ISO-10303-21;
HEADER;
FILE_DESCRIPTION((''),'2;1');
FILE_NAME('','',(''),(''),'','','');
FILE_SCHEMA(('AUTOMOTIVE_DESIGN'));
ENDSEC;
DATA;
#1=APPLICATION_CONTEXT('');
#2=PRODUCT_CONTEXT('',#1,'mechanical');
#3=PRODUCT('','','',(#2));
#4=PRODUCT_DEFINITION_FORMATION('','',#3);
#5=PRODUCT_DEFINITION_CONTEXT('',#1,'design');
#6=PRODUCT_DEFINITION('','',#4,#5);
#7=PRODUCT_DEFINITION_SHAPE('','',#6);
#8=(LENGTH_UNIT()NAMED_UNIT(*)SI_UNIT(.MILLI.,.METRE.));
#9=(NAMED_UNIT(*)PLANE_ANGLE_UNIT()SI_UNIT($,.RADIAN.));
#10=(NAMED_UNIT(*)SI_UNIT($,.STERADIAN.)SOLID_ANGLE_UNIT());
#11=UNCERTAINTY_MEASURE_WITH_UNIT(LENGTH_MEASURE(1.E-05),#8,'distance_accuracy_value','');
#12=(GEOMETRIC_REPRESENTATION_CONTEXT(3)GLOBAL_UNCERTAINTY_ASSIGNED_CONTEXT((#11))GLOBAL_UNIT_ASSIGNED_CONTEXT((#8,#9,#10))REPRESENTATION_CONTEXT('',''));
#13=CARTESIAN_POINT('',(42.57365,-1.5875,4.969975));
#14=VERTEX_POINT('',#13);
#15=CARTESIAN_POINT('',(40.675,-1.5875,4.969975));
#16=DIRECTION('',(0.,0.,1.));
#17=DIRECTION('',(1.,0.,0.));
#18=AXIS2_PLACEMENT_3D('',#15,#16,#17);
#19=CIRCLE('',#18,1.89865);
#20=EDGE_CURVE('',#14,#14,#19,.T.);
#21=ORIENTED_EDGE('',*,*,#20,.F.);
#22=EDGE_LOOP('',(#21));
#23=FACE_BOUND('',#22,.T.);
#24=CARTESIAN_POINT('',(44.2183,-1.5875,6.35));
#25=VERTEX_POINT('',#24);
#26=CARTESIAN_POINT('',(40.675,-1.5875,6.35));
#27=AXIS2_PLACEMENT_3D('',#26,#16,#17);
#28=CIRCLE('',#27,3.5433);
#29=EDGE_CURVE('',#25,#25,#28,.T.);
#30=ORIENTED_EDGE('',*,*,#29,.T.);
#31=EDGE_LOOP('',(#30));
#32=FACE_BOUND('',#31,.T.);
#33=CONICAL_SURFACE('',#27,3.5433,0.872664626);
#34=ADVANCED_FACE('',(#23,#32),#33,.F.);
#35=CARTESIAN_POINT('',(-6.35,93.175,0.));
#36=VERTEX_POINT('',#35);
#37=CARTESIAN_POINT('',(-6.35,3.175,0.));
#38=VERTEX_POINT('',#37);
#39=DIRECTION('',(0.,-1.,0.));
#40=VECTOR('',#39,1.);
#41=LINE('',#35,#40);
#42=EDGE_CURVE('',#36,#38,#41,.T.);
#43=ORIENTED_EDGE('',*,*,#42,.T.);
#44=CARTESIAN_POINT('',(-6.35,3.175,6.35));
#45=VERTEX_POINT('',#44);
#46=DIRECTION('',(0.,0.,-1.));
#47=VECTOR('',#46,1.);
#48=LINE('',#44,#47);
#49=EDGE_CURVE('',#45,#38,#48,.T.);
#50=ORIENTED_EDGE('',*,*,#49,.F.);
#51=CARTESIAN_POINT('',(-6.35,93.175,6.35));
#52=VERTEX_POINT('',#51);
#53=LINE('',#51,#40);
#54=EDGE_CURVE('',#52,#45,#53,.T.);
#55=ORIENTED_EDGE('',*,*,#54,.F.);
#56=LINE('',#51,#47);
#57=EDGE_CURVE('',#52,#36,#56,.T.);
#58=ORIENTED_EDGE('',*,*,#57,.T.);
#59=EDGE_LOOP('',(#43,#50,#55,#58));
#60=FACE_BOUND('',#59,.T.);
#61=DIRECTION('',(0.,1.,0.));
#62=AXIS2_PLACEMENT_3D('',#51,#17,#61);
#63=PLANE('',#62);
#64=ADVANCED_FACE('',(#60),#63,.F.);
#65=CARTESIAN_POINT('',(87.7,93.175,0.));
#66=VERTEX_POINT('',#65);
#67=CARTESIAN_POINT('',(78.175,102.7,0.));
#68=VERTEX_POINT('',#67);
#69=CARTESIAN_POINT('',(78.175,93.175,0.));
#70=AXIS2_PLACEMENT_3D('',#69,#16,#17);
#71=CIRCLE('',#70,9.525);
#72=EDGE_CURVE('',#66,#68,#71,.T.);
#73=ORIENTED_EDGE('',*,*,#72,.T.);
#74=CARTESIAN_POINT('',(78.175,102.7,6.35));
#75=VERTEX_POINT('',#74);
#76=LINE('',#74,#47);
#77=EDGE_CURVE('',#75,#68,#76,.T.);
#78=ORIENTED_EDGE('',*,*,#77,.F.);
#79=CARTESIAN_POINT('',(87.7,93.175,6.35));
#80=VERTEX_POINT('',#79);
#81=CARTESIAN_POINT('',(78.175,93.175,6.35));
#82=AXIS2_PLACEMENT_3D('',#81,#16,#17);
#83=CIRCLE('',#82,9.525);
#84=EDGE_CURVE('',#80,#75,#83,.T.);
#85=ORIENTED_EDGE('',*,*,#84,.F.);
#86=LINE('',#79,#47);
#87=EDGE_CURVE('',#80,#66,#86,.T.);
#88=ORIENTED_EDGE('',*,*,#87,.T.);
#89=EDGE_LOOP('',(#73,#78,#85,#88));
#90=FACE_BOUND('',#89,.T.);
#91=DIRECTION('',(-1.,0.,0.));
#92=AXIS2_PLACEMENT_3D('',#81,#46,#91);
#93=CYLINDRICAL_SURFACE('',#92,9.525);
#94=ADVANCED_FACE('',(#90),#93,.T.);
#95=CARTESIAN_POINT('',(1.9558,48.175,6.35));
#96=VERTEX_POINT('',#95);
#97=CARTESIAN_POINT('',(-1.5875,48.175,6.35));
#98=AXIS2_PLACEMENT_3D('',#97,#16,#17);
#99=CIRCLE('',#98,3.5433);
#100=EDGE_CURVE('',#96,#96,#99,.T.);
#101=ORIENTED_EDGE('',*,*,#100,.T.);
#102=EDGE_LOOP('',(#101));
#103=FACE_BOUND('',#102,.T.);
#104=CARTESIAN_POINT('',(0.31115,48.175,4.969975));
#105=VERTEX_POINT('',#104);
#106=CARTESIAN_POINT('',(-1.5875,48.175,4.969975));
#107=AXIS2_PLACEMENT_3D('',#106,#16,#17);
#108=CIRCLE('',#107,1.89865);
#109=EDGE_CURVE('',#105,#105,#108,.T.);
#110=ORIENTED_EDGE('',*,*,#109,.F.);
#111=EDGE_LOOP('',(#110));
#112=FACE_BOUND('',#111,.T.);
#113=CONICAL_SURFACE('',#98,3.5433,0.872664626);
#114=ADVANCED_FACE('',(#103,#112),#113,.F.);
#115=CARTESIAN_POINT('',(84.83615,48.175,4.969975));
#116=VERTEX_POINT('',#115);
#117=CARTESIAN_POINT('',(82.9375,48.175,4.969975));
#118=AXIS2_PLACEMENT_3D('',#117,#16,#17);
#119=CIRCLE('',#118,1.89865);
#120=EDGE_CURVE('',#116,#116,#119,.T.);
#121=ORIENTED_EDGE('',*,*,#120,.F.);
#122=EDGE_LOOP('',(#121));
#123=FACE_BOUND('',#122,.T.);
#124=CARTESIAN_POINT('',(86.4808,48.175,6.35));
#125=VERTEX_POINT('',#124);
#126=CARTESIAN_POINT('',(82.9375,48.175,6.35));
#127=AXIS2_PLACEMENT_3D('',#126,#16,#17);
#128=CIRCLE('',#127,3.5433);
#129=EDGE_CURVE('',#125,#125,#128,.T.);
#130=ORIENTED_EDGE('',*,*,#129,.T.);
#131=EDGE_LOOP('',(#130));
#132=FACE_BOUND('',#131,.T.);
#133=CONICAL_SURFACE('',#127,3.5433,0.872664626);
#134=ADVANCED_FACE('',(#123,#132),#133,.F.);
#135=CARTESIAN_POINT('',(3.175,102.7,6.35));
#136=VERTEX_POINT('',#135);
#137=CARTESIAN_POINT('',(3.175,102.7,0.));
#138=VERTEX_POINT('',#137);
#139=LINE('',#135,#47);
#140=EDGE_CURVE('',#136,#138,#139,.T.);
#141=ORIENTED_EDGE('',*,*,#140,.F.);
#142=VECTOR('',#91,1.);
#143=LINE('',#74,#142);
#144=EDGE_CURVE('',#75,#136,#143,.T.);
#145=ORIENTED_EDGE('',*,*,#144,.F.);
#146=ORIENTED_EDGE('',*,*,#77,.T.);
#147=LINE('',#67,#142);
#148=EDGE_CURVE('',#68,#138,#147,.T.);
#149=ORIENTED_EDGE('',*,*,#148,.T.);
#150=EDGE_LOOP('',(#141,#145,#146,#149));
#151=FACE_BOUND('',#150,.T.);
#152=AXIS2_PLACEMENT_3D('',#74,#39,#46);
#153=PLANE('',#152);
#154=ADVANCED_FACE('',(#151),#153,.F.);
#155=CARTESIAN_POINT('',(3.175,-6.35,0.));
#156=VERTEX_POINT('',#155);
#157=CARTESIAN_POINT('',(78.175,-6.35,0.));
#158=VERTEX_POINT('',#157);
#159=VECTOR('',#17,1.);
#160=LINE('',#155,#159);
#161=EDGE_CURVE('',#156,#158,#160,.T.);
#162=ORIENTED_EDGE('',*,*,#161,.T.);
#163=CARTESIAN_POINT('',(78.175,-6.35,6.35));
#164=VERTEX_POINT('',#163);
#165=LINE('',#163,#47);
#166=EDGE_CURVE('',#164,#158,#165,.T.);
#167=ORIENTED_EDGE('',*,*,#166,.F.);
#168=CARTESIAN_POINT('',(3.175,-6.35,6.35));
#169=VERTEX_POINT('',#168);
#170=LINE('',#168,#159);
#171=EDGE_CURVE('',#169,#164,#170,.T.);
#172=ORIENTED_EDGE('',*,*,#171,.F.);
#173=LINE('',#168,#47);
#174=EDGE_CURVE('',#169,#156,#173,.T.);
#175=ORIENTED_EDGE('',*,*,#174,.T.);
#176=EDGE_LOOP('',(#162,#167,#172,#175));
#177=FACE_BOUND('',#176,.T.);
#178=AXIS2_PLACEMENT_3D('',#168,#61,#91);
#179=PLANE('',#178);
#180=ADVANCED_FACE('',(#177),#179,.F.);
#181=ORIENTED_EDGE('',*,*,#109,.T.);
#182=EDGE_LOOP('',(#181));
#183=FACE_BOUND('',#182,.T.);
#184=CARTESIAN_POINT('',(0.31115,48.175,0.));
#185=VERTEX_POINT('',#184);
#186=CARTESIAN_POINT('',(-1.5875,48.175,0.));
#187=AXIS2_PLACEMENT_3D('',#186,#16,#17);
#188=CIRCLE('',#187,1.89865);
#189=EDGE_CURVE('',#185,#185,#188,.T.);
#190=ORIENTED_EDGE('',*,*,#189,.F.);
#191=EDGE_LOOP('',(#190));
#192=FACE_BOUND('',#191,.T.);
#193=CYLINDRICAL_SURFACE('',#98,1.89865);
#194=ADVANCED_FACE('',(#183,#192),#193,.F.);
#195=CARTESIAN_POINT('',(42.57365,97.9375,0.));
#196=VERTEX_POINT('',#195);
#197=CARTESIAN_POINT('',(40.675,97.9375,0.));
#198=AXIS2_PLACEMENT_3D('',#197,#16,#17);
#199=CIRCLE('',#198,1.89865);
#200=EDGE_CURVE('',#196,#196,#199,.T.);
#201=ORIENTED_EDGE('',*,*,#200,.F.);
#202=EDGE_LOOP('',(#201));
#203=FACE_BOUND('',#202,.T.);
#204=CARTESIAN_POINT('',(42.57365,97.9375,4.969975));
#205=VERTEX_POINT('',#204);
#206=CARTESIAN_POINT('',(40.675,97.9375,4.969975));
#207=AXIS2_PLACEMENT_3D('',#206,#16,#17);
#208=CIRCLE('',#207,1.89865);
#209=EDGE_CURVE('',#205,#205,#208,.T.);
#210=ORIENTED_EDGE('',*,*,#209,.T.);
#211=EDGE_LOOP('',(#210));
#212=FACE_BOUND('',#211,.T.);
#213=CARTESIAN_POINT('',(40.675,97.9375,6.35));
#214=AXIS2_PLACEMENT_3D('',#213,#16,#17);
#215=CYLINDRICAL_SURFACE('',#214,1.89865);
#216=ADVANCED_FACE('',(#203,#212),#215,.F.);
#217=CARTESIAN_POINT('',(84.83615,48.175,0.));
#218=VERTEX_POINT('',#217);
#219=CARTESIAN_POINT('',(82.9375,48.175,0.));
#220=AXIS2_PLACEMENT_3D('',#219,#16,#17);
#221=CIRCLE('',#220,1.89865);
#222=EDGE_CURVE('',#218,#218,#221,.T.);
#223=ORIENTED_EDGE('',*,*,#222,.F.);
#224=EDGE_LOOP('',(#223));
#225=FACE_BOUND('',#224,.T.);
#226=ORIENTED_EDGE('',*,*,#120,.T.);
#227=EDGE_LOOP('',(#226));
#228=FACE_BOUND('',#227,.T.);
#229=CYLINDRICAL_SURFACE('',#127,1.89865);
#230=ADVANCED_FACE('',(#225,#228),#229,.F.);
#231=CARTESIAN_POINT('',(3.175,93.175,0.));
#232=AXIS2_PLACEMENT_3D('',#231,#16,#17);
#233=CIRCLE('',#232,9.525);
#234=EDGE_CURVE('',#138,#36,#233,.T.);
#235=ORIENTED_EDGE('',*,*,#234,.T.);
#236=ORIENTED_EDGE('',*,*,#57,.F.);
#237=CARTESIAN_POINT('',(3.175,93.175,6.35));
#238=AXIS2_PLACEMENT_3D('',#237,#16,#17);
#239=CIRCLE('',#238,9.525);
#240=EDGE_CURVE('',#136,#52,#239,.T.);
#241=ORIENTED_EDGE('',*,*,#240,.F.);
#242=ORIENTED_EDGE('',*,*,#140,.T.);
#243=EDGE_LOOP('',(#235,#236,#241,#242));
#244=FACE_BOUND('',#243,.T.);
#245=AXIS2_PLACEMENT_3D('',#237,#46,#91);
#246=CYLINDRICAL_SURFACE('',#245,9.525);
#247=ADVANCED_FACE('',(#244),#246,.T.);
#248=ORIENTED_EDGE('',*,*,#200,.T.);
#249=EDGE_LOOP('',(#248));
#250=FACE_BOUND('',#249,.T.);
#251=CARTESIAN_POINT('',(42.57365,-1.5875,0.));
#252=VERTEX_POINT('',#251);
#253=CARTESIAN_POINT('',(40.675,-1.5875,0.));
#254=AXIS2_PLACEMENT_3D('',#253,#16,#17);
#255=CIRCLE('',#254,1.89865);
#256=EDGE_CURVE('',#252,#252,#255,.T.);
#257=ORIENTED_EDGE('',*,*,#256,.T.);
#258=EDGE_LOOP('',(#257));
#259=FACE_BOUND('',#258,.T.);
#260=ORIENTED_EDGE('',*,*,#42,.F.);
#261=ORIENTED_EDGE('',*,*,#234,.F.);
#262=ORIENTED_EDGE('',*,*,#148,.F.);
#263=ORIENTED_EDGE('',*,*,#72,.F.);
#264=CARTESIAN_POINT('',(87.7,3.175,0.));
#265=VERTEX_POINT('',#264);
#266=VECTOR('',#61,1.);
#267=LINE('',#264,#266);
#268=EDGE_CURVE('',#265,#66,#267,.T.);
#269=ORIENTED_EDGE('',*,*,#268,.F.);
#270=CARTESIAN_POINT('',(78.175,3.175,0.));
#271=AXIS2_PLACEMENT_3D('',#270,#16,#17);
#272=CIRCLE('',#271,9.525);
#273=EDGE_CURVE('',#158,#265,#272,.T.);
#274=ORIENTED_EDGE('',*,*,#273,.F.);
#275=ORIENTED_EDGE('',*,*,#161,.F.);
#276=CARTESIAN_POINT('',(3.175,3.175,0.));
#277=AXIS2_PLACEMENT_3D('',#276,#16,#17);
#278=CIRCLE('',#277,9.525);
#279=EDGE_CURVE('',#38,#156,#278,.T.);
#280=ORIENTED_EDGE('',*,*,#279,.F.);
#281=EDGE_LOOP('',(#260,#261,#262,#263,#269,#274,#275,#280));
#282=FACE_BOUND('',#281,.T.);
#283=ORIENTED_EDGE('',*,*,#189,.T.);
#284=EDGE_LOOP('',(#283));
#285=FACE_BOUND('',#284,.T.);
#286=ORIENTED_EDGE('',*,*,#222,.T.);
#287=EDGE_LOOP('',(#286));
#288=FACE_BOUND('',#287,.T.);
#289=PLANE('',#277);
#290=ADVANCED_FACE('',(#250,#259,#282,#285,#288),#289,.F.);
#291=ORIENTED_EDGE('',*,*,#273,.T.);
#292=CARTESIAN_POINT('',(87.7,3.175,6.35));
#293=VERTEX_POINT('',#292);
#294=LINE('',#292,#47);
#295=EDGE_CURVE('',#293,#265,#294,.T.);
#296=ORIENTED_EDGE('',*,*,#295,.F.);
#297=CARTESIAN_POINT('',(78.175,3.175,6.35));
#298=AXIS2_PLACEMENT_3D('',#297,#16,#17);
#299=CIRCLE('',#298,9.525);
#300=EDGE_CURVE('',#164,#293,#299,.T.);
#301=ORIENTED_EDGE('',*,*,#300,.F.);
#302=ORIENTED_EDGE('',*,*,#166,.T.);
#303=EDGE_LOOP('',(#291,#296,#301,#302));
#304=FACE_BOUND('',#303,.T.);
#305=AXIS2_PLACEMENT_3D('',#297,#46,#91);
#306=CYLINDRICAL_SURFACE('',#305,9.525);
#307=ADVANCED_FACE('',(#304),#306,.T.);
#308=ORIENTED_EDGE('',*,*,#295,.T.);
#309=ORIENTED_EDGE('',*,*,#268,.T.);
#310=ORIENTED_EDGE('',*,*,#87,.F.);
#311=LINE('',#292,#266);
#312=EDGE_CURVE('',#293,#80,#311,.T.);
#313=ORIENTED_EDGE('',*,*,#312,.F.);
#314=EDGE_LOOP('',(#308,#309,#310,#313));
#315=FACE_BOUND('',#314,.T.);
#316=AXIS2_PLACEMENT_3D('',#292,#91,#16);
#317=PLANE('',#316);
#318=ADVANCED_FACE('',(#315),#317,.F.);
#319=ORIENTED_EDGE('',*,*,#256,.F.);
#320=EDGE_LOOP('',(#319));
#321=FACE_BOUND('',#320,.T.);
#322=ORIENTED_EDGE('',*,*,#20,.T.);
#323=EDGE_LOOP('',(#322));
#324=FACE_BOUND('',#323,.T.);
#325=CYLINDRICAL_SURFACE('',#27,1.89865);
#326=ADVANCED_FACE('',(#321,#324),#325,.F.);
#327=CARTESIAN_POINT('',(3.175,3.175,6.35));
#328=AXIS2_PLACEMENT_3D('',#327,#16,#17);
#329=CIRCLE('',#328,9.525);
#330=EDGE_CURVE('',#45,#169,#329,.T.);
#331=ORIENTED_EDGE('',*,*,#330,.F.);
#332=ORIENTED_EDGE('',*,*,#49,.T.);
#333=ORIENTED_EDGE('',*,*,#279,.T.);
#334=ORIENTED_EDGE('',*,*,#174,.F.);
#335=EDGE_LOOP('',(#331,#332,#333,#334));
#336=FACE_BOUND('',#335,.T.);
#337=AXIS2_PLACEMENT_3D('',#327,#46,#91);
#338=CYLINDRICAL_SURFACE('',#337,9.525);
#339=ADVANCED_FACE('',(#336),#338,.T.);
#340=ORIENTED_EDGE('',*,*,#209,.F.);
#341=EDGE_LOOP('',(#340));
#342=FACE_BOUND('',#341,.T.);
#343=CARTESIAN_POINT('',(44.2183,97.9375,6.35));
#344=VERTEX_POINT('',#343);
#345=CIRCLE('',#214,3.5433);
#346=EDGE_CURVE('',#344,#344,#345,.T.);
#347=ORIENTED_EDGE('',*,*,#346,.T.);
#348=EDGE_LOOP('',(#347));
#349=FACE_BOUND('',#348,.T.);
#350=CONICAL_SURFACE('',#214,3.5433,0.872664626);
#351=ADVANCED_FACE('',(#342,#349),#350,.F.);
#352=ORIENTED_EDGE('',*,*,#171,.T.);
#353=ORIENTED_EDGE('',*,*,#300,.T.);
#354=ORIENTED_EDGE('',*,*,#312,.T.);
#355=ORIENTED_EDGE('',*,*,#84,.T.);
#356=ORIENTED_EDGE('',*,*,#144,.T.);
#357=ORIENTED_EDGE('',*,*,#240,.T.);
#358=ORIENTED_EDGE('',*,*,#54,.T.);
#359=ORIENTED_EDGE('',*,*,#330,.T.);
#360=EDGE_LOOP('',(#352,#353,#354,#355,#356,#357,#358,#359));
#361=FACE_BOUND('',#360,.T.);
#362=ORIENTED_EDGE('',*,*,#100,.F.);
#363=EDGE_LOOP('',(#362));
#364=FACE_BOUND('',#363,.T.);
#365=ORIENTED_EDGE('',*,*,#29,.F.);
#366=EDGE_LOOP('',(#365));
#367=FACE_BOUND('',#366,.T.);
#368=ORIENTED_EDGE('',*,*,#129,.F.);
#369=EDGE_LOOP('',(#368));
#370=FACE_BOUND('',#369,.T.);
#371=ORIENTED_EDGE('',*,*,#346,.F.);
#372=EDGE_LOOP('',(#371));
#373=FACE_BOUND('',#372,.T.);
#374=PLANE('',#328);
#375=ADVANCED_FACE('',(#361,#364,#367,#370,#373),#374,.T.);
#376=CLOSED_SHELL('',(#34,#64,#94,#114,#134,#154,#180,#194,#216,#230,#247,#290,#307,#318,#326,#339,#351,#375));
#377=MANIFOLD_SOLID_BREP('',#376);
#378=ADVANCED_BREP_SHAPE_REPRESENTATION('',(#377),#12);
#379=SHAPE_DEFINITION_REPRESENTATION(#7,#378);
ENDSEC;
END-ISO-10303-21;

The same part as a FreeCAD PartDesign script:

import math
import FreeCAD as App
import Part
import Sketcher
Q = App.Units.Quantity

doc = App.newDocument("Part")
body = doc.addObject("PartDesign::Body", "Body")

sketch1 = body.newObject("Sketcher::SketchObject", "Sketch")
sketch1.AttachmentSupport = (doc.getObject("XY_Plane"), [""])
sketch1.MapMode = "FlatFace"
sketch1.addGeometry([
    Part.LineSegment(App.Vector(3.175, -6.35, 0), App.Vector(78.175, -6.35, 0)),
    Part.ArcOfCircle(Part.Circle(App.Vector(78.175, 3.175, 0), App.Vector(0, 0, 1), 9.525), math.radians(-90), math.radians(0)),
    Part.LineSegment(App.Vector(87.7, 3.175, 0), App.Vector(87.7, 93.175, 0)),
    Part.ArcOfCircle(Part.Circle(App.Vector(78.175, 93.175, 0), App.Vector(0, 0, 1), 9.525), math.radians(0), math.radians(90)),
    Part.LineSegment(App.Vector(78.175, 102.7, 0), App.Vector(3.175, 102.7, 0)),
    Part.ArcOfCircle(Part.Circle(App.Vector(3.175, 93.175, 0), App.Vector(0, 0, 1), 9.525), math.radians(90), math.radians(180)),
    Part.LineSegment(App.Vector(-6.35, 93.175, 0), App.Vector(-6.35, 3.175, 0)),
    Part.ArcOfCircle(Part.Circle(App.Vector(3.175, 3.175, 0), App.Vector(0, 0, 1), 9.525), math.radians(180), math.radians(270)),
    Part.Circle(App.Vector(40.675, -1.5875, 0), App.Vector(0, 0, 1), 1.5875),
    Part.Circle(App.Vector(-1.5875, 48.175, 0), App.Vector(0, 0, 1), 1.5875),
    Part.Circle(App.Vector(82.9375, 48.175, 0), App.Vector(0, 0, 1), 1.5875),
    Part.Circle(App.Vector(40.675, 97.9375, 0), App.Vector(0, 0, 1), 1.5875),
], False)
sketch1.addConstraint([
    Sketcher.Constraint("Tangent", 0, 2, 1, 1),
    Sketcher.Constraint("Tangent", 1, 2, 2, 1),
    Sketcher.Constraint("Tangent", 2, 2, 3, 1),
    Sketcher.Constraint("Tangent", 3, 2, 4, 1),
    Sketcher.Constraint("Tangent", 4, 2, 5, 1),
    Sketcher.Constraint("Tangent", 5, 2, 6, 1),
    Sketcher.Constraint("Tangent", 6, 2, 7, 1),
    Sketcher.Constraint("Tangent", 7, 2, 0, 1),
    Sketcher.Constraint("Horizontal", 0),
    Sketcher.Constraint("Vertical", 2),
    Sketcher.Constraint("Horizontal", 4),
    Sketcher.Constraint("Vertical", 6),
    Sketcher.Constraint("Equal", 1, 3),
    Sketcher.Constraint("Equal", 3, 5),
    Sketcher.Constraint("Equal", 5, 7),
    Sketcher.Constraint("Equal", 8, 9),
    Sketcher.Constraint("Equal", 9, 10),
    Sketcher.Constraint("Equal", 10, 11),
    Sketcher.Constraint("Horizontal", 9, 3, 10, 3),
    Sketcher.Constraint("Vertical", 8, 3, 11, 3),
    Sketcher.Constraint("Diameter", 8, Q("0.125 in")),
    Sketcher.Constraint("Radius", 1, Q("0.375 in")),
    Sketcher.Constraint("DistanceY", 0, 2, -1, 1, Q("0.25 in")),
    Sketcher.Constraint("DistanceX", 5, 2, -1, 1, Q("0.25 in")),
    Sketcher.Constraint("DistanceY", 8, 3, -1, 1, Q("0.0625 in")),
    Sketcher.Constraint("DistanceX", 9, 3, -1, 1, Q("0.0625 in")),
    Sketcher.Constraint("DistanceX", 1, 3, 10, 3, Q("0.1875 in")),
    Sketcher.Constraint("DistanceY", 5, 3, 11, 3, Q("0.1875 in")),
    Sketcher.Constraint("DistanceX", 0, 1, 0, 2, Q("75 mm")),
    Sketcher.Constraint("DistanceY", 2, 1, 2, 2, Q("90 mm")),
    Sketcher.Constraint("DistanceX", -1, 1, 8, 3, Q("40.675 mm")),
    Sketcher.Constraint("DistanceY", -1, 1, 9, 3, Q("48.175 mm")),
])
pad1 = body.newObject("PartDesign::Pad", "Pad")
pad1.Profile = sketch1
pad1.Length = Q("0.25 in")

sketch2 = body.newObject("Sketcher::SketchObject", "Sketch001")
sketch2.AttachmentSupport = (doc.getObject("XY_Plane"), [""])
sketch2.MapMode = "FlatFace"
sketch2.AttachmentOffset = App.Placement(App.Vector(0, 0, 0.25 * 25.4), App.Rotation())
sketch2.addGeometry([
    Part.Circle(App.Vector(82.9375, 48.175, 0), App.Vector(0, 0, 1), 1.89865),
    Part.Circle(App.Vector(-1.5875, 48.175, 0), App.Vector(0, 0, 1), 1.89865),
    Part.Circle(App.Vector(40.675, -1.5875, 0), App.Vector(0, 0, 1), 1.89865),
    Part.Circle(App.Vector(40.675, 97.9375, 0), App.Vector(0, 0, 1), 1.89865),
], False)
sketch2.addConstraint([
    Sketcher.Constraint("Equal", 0, 1),
    Sketcher.Constraint("Equal", 1, 2),
    Sketcher.Constraint("Equal", 2, 3),
    Sketcher.Constraint("Horizontal", 0, 3, 1, 3),
    Sketcher.Constraint("Vertical", 2, 3, 3, 3),
    Sketcher.Constraint("Diameter", 0, Q("0.1495 in")),
    Sketcher.Constraint("DistanceX", 1, 3, -1, 1, Q("0.0625 in")),
    Sketcher.Constraint("DistanceY", 2, 3, -1, 1, Q("0.0625 in")),
    Sketcher.Constraint("DistanceX", -1, 1, 0, 3, Q("82.9375 mm")),
    Sketcher.Constraint("DistanceY", -1, 1, 0, 3, Q("48.175 mm")),
    Sketcher.Constraint("DistanceX", -1, 1, 2, 3, Q("40.675 mm")),
    Sketcher.Constraint("DistanceY", -1, 1, 3, 3, Q("97.9375 mm")),
])
doc.recompute()
hole = body.newObject("PartDesign::Hole", "Hole")
hole.Profile = sketch2
hole.ThreadType = "None"
hole.Diameter = Q("0.1495 in")
hole.DepthType = "ThroughAll"
hole.HoleCutType = "Countersink"
hole.HoleCutDiameter = Q("0.279 in")
hole.HoleCutCountersinkAngle = 100

doc.recompute()
